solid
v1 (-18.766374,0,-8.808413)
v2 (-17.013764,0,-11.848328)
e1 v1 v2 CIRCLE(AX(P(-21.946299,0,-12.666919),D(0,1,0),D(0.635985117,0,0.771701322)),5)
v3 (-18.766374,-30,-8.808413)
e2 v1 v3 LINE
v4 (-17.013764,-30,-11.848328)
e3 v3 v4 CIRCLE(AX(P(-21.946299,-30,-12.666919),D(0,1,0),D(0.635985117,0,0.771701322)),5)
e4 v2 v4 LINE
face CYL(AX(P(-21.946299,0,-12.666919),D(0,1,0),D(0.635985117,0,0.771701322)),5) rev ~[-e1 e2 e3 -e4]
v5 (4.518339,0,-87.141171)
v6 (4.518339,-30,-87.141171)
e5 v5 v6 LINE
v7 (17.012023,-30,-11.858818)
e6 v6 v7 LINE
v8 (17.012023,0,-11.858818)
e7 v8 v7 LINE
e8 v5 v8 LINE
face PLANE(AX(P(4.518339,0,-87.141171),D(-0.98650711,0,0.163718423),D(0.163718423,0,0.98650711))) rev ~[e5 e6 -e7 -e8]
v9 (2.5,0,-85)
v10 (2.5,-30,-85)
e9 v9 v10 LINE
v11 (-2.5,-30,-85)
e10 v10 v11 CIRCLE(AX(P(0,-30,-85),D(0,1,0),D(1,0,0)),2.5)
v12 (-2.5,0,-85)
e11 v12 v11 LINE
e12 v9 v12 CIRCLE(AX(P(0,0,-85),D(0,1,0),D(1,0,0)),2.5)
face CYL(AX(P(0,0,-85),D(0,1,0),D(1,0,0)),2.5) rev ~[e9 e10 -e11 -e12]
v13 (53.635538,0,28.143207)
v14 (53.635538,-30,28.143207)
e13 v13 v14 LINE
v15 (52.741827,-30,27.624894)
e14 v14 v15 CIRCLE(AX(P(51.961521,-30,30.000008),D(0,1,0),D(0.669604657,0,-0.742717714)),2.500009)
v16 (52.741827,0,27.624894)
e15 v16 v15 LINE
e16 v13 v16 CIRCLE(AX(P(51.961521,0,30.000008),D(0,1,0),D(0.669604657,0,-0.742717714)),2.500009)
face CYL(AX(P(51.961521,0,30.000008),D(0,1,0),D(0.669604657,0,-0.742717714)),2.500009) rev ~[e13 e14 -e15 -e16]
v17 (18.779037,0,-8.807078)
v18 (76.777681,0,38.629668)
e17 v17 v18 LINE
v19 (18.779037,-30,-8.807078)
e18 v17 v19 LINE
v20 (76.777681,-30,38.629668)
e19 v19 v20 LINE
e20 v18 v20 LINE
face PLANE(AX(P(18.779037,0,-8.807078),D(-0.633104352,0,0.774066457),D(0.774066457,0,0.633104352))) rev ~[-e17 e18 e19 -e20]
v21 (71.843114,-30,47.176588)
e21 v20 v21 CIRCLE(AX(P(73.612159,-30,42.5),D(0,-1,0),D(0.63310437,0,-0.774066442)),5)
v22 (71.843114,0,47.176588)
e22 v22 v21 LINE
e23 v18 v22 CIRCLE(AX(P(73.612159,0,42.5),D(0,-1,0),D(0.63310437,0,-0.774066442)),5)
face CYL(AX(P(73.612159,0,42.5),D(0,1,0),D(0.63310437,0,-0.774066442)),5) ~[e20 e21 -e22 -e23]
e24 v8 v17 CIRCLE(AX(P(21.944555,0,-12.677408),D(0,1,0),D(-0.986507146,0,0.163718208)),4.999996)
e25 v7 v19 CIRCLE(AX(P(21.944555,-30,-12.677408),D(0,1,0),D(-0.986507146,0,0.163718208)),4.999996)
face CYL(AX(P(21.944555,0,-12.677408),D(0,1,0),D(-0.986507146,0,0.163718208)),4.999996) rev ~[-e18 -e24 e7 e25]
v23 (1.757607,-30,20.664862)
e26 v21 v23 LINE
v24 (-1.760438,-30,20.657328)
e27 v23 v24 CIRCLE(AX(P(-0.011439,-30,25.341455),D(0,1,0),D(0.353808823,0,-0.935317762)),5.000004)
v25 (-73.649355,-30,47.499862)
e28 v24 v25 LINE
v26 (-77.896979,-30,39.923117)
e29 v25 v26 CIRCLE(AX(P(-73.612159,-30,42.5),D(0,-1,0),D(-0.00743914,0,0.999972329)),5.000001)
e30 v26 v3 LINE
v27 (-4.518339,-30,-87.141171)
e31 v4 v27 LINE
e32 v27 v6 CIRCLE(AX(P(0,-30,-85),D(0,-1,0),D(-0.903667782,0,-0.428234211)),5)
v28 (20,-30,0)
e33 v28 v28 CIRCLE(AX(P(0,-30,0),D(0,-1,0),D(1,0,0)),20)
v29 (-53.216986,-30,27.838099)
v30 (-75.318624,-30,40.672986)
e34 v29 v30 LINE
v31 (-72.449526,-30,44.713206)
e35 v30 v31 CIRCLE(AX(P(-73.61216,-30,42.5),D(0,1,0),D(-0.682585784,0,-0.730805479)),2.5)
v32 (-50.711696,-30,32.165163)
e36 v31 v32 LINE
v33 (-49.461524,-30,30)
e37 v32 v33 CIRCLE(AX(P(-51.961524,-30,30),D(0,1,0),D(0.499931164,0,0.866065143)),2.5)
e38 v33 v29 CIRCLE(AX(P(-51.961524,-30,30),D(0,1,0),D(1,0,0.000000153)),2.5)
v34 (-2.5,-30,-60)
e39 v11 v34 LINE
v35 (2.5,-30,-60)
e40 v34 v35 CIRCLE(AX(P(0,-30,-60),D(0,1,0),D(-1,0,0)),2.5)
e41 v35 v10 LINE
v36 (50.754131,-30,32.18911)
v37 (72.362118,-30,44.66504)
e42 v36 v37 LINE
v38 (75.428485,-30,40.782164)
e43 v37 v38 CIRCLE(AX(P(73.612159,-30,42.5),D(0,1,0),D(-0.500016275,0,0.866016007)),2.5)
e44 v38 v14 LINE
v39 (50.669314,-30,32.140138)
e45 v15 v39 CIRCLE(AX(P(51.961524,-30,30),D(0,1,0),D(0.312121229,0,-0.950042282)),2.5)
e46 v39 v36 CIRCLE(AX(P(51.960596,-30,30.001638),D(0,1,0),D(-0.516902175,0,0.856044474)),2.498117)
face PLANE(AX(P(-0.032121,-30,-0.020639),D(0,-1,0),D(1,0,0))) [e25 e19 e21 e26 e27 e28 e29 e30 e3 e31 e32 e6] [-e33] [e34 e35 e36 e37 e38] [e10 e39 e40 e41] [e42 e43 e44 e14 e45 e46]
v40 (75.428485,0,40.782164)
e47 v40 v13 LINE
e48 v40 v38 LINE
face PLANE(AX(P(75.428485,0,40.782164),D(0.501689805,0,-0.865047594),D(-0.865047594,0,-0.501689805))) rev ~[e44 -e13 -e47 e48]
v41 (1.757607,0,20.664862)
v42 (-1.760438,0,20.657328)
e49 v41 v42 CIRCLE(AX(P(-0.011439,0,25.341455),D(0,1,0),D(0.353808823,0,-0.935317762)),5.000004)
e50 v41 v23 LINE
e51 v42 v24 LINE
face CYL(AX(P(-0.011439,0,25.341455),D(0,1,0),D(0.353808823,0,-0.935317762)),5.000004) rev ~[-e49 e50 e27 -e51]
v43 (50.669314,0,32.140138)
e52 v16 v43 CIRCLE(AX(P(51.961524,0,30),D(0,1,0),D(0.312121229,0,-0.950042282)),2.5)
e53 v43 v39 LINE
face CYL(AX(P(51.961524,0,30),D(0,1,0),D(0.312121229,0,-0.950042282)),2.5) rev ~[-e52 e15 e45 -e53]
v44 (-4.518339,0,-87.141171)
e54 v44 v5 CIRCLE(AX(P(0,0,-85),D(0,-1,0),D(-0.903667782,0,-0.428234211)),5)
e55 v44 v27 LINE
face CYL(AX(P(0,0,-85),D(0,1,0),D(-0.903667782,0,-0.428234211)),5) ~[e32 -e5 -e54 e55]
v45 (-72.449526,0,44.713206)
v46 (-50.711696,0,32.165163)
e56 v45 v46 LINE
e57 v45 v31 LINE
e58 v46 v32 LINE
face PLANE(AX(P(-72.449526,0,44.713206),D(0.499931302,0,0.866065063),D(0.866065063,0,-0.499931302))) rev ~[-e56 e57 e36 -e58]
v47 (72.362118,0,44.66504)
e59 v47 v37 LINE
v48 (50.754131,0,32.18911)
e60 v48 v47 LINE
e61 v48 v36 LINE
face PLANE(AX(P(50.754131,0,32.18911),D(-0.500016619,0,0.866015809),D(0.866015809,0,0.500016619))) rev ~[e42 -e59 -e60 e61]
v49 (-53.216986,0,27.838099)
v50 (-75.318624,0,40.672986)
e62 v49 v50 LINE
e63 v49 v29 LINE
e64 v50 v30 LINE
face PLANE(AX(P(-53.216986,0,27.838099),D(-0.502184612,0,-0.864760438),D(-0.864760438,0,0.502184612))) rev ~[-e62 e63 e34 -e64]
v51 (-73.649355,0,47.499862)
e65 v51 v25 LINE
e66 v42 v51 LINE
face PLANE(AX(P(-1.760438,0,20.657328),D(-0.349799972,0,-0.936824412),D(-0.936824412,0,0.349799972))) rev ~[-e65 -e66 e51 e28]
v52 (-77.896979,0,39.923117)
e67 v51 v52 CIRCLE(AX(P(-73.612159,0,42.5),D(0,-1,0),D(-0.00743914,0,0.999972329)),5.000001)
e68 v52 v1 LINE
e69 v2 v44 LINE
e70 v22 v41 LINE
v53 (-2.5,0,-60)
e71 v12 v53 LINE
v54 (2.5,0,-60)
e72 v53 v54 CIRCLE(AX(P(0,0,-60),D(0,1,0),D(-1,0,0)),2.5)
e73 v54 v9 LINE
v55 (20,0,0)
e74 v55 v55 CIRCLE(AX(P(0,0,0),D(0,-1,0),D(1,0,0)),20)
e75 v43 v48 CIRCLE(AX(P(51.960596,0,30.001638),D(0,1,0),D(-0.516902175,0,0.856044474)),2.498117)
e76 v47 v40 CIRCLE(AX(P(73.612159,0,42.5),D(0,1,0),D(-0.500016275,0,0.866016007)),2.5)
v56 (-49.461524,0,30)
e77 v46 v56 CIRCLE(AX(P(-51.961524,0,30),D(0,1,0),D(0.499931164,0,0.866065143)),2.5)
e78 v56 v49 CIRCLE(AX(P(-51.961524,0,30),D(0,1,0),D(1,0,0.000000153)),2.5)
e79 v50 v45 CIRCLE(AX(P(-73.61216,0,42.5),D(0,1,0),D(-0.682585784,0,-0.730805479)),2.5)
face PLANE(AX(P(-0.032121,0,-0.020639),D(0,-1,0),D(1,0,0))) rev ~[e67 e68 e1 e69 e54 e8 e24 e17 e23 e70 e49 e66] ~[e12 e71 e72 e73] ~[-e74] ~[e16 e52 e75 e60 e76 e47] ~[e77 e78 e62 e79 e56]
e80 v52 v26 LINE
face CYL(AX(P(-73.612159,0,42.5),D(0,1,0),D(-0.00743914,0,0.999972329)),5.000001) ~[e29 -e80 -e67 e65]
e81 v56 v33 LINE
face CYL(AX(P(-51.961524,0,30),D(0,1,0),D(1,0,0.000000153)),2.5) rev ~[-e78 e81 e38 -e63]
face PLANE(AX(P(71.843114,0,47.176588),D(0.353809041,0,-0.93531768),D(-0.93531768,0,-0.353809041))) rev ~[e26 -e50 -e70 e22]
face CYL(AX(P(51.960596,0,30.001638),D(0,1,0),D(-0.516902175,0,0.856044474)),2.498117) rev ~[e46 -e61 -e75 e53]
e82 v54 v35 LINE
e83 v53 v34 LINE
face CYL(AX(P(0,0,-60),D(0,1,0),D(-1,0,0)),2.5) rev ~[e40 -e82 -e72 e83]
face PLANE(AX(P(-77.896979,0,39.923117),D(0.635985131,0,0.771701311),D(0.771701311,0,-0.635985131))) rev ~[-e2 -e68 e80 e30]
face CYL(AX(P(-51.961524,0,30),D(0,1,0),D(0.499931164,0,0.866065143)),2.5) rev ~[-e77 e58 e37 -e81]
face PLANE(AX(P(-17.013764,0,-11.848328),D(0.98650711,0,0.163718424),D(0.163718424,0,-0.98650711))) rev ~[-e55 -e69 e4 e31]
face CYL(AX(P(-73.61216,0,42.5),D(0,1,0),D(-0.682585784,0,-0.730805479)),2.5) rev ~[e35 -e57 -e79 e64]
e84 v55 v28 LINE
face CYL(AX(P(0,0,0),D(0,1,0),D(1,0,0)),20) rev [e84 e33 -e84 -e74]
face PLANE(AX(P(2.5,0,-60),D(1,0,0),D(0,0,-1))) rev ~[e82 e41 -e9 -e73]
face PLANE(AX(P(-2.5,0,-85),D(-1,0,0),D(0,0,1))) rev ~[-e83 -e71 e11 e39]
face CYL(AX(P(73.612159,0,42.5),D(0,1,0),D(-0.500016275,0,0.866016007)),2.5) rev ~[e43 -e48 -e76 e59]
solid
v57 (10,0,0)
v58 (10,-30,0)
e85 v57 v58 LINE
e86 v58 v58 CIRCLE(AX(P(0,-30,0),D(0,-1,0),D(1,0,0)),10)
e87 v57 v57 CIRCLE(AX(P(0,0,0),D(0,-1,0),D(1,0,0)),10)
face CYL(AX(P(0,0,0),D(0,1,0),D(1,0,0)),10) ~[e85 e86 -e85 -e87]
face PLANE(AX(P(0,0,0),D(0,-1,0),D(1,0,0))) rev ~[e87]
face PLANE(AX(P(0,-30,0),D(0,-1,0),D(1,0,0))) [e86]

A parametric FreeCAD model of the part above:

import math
import FreeCAD as App
import Part
import Sketcher

V = App.Vector

doc = App.newDocument("Part")
body = doc.addObject("PartDesign::Body", "Body")
body.AllowCompound = True

sketch1 = body.newObject("Sketcher::SketchObject", "Sketch")
sketch1.AttachmentSupport = (doc.getObject("XZ_Plane"), [""])
sketch1.MapMode = "FlatFace"
sketch1.addGeometry(Part.LineSegment(V(-17.013764, -11.848328, 0), V(-4.518339, -87.141171, 0)), False)
sketch1.addGeometry(Part.ArcOfCircle(Part.Circle(V(0, -85, 0), V(0, 0, 1), 5), math.radians(-154.644449), math.radians(-25.355551)), False)
sketch1.addGeometry(Part.LineSegment(V(4.518339, -87.141171, 0), V(17.012023, -11.858818, 0)), False)
sketch1.addGeometry(Part.ArcOfCircle(Part.Circle(V(21.944555, -12.677408, 0), V(0, 0, 1), 4.999996), math.radians(129.279508), math.radians(170.577219)), False)
sketch1.addGeometry(Part.LineSegment(V(18.779037, -8.807078, 0), V(76.777681, 38.629668, 0)), False)
sketch1.addGeometry(Part.ArcOfCircle(Part.Circle(V(73.612159, 42.5, 0), V(0, 0, 1), 5), math.radians(-50.72047), math.radians(110.720474)), False)
sketch1.addGeometry(Part.LineSegment(V(71.843114, 47.176588, 0), V(1.757607, 20.664862, 0)), False)
sketch1.addGeometry(Part.ArcOfCircle(Part.Circle(V(-0.011439, 25.341455, 0), V(0, 0, 1), 5.000004), math.radians(-110.475057), math.radians(-69.279542)), False)
sketch1.addGeometry(Part.LineSegment(V(-1.760438, 20.657328, 0), V(-73.649355, 47.499862, 0)), False)
sketch1.addGeometry(Part.ArcOfCircle(Part.Circle(V(-73.612159, 42.5, 0), V(0, 0, 1), 5.000001), math.radians(90.426235), math.radians(211.022625)), False)
sketch1.addGeometry(Part.LineSegment(V(-77.896979, 39.923117, 0), V(-18.766374, -8.808413, 0)), False)
sketch1.addGeometry(Part.ArcOfCircle(Part.Circle(V(-21.946299, -12.666919, 0), V(0, 0, 1), 5), math.radians(9.422786), math.radians(50.506913)), False)
sketch1.addGeometry(Part.LineSegment(V(2.5, -60, 0), V(2.5, -85, 0)), False)
sketch1.addGeometry(Part.ArcOfCircle(Part.Circle(V(0, -85, 0), V(0, 0, 1), 2.5), math.radians(180), math.radians(360)), False)
sketch1.addGeometry(Part.LineSegment(V(-2.5, -85, 0), V(-2.5, -60, 0)), False)
sketch1.addGeometry(Part.ArcOfCircle(Part.Circle(V(0, -60, 0), V(0, 0, 1), 2.5), math.radians(0), math.radians(180)), False)
sketch1.addGeometry(Part.LineSegment(V(-53.216986, 27.838099, 0), V(-75.318624, 40.672986, 0)), False)
sketch1.addGeometry(Part.ArcOfCircle(Part.Circle(V(-73.61216, 42.5, 0), V(0, 0, 1), 2.5), math.radians(62.286318), math.radians(226.953963)), False)
sketch1.addGeometry(Part.LineSegment(V(-72.449526, 44.713206, 0), V(-50.711696, 32.165163, 0)), False)
sketch1.addGeometry(Part.ArcOfCircle(Part.Circle(V(-51.961524, 30, 0), V(0, 0, 1), 2.5), math.radians(-0.000007), math.radians(60.004554)), False)
sketch1.addGeometry(Part.ArcOfCircle(Part.Circle(V(-51.961524, 30, 0), V(0, 0, 1), 2.5), math.radians(-120.144656), math.radians(0.000009)), False)
sketch1.addGeometry(Part.Circle(V(0, 0, 0), V(0, 0, 1), 20), False)
sketch1.addGeometry(Part.LineSegment(V(50.754131, 32.18911, 0), V(72.362118, 44.66504, 0)), False)
sketch1.addGeometry(Part.ArcOfCircle(Part.Circle(V(73.612159, 42.5, 0), V(0, 0, 1), 2.5), math.radians(-43.403688), math.radians(120.001077)), False)
sketch1.addGeometry(Part.LineSegment(V(75.428485, 40.782164, 0), V(53.635538, 28.143207, 0)), False)
sketch1.addGeometry(Part.ArcOfCircle(Part.Circle(V(51.961521, 30.000008, 0), V(0, 0, 1), 2.500009), math.radians(-71.812871), math.radians(-47.963441)), False)
sketch1.addGeometry(Part.ArcOfCircle(Part.Circle(V(51.961524, 30, 0), V(0, 0, 1), 2.5), math.radians(121.123469), math.radians(288.187112)), False)
sketch1.addGeometry(Part.ArcOfCircle(Part.Circle(V(51.960596, 30.001638, 0), V(0, 0, 1), 2.498117), math.radians(118.878237), math.radians(121.124684)), False)
sketch1.addGeometry(Part.Circle(V(0, 0, 0), V(0, 0, 1), 10), False)
sketch1.addConstraint(Sketcher.Constraint("Coincident", 0, 2, 1, 1))
sketch1.addConstraint(Sketcher.Constraint("Coincident", 1, 2, 2, 1))
sketch1.addConstraint(Sketcher.Constraint("Coincident", 2, 2, 3, 2))
sketch1.addConstraint(Sketcher.Constraint("Coincident", 3, 1, 4, 1))
sketch1.addConstraint(Sketcher.Constraint("Coincident", 4, 2, 5, 1))
sketch1.addConstraint(Sketcher.Constraint("Coincident", 5, 2, 6, 1))
sketch1.addConstraint(Sketcher.Constraint("Coincident", 6, 2, 7, 2))
sketch1.addConstraint(Sketcher.Constraint("Coincident", 7, 1, 8, 1))
sketch1.addConstraint(Sketcher.Constraint("Coincident", 8, 2, 9, 1))
sketch1.addConstraint(Sketcher.Constraint("Coincident", 9, 2, 10, 1))
sketch1.addConstraint(Sketcher.Constraint("Coincident", 10, 2, 11, 2))
sketch1.addConstraint(Sketcher.Constraint("Coincident", 11, 1, 0, 1))
sketch1.addConstraint(Sketcher.Constraint("Coincident", 12, 2, 13, 2))
sketch1.addConstraint(Sketcher.Constraint("Coincident", 13, 1, 14, 1))
sketch1.addConstraint(Sketcher.Constraint("Coincident", 14, 2, 15, 2))
sketch1.addConstraint(Sketcher.Constraint("Coincident", 15, 1, 12, 1))
sketch1.addConstraint(Sketcher.Constraint("Coincident", 16, 2, 17, 2))
sketch1.addConstraint(Sketcher.Constraint("Coincident", 17, 1, 18, 1))
sketch1.addConstraint(Sketcher.Constraint("Coincident", 18, 2, 19, 2))
sketch1.addConstraint(Sketcher.Constraint("Coincident", 19, 1, 20, 2))
sketch1.addConstraint(Sketcher.Constraint("Coincident", 20, 1, 16, 1))
sketch1.addConstraint(Sketcher.Constraint("Coincident", 22, 2, 23, 2))
sketch1.addConstraint(Sketcher.Constraint("Coincident", 23, 1, 24, 1))
sketch1.addConstraint(Sketcher.Constraint("Coincident", 24, 2, 25, 2))
sketch1.addConstraint(Sketcher.Constraint("Coincident", 25, 1, 26, 2))
sketch1.addConstraint(Sketcher.Constraint("Coincident", 26, 1, 27, 2))
sketch1.addConstraint(Sketcher.Constraint("Coincident", 27, 1, 22, 1))
sketch1.addConstraint(Sketcher.Constraint("Vertical", 12))
sketch1.addConstraint(Sketcher.Constraint("Vertical", 14))
sketch1.addConstraint(Sketcher.Constraint("Coincident", 21, 3, -1, 1))
sketch1.addConstraint(Sketcher.Constraint("Coincident", 28, 3, -1, 1))
sketch1.addConstraint(Sketcher.Constraint("Coincident", 13, 3, 1, 3))
sketch1.addConstraint(Sketcher.Constraint("Coincident", 17, 3, 9, 3))
sketch1.addConstraint(Sketcher.Constraint("Coincident", 20, 3, 19, 3))
sketch1.addConstraint(Sketcher.Constraint("Coincident", 23, 3, 5, 3))
sketch1.addConstraint(Sketcher.Constraint("Coincident", 26, 3, 25, 3))
sketch1.addConstraint(Sketcher.Constraint("PointOnObject", 1, 3, -2))
sketch1.addConstraint(Sketcher.Constraint("Diameter", 21, 40.0))
sketch1.addConstraint(Sketcher.Constraint("Diameter", 28, 20.0))
sketch1.addConstraint(Sketcher.Constraint("Radius", 1, 5.0))
sketch1.addConstraint(Sketcher.Constraint("Radius", 5, 5.0))
sketch1.addConstraint(Sketcher.Constraint("Radius", 9, 5.000001))
sketch1.addConstraint(Sketcher.Constraint("Radius", 11, 5.0))
sketch1.addConstraint(Sketcher.Constraint("Radius", 13, 2.5))
sketch1.addConstraint(Sketcher.Constraint("Radius", 17, 2.5))
sketch1.addConstraint(Sketcher.Constraint("Radius", 19, 2.5))
sketch1.addConstraint(Sketcher.Constraint("Radius", 23, 2.5))
sketch1.addConstraint(Sketcher.Constraint("Radius", 26, 2.5))
sketch1.addConstraint(Sketcher.Constraint("DistanceY", 12, 2, 12, 1, 25.0))
sketch1.addConstraint(Sketcher.Constraint("DistanceY", 14, 1, 14, 2, 25.0))
sketch1.addConstraint(Sketcher.Constraint("DistanceY", 1, 3, -1, 1, 85.0))
sketch1.addConstraint(Sketcher.Constraint("DistanceY", 15, 3, -1, 1, 60.0))
sketch1.addConstraint(Sketcher.Constraint("DistanceY", -1, 1, 19, 3, 30.0))
sketch1.addConstraint(Sketcher.Constraint("DistanceY", -1, 1, 26, 3, 30.0))
sketch1.addConstraint(Sketcher.Constraint("DistanceY", 12, 2, -1, 1, 85.0))
sketch1.addConstraint(Sketcher.Constraint("DistanceY", 13, 1, -1, 1, 85.0))
sketch1.addConstraint(Sketcher.Constraint("DistanceY", -1, 1, 19, 1, 30.0))
sketch1.addConstraint(Sketcher.Constraint("DistanceY", -1, 1, 5, 3, 42.5))
sketch1.addConstraint(Sketcher.Constraint("DistanceY", -1, 1, 9, 3, 42.5))
sketch1.addConstraint(Sketcher.Constraint("Radius", 3, 4.999996))
sketch1.addConstraint(Sketcher.Constraint("Radius", 7, 5.000004))
sketch1.addConstraint(Sketcher.Constraint("Radius", 27, 2.498117))
sketch1.addConstraint(Sketcher.Constraint("DistanceX", 7, 1, 7, 3, 1.748999))
sketch1.addConstraint(Sketcher.Constraint("DistanceX", 11, 3, -1, 1, 21.946299))
sketch1.addConstraint(Sketcher.Constraint("DistanceY", -1, 1, 20, 1, 27.838099))
sketch1.addConstraint(Sketcher.Constraint("DistanceY", 11, 3, 2, 2, 0.808101))
sketch1.addConstraint(Sketcher.Constraint("DistanceX", 16, 2, 19, 3, 23.3571))
sketch1.addConstraint(Sketcher.Constraint("DistanceX", 16, 2, 17, 1, 2.869098))
sketch1.addConstraint(Sketcher.Constraint("DistanceY", 27, 3, 22, 2, 14.663402))
sketch1.addConstraint(Sketcher.Constraint("DistanceY", 24, 2, 25, 3, 1.856801))
sketch1.addConstraint(Sketcher.Constraint("DistanceY", 27, 3, 26, 1, 2.1385))
sketch1.addConstraint(Sketcher.Constraint("Distance", 8, 76.73681))
sketch1.addConstraint(Sketcher.Constraint("Distance", 22, 24.951031))
sketch1.addConstraint(Sketcher.Constraint("DistanceY", 3, 3, -1, 1, 12.677408))
sketch1.addConstraint(Sketcher.Constraint("DistanceX", -1, 1, 5, 3, 73.612159))
sketch1.addConstraint(Sketcher.Constraint("DistanceX", 7, 3, -1, 1, 0.011439))
sketch1.addConstraint(Sketcher.Constraint("DistanceX", 9, 3, -1, 1, 73.612159))
sketch1.addConstraint(Sketcher.Constraint("DistanceY", 11, 3, -1, 1, 12.666919))
sketch1.addConstraint(Sketcher.Constraint("DistanceX", -1, 1, 25, 3, 51.961521))
sketch1.addConstraint(Sketcher.Constraint("DistanceY", -1, 1, 27, 3, 30.001638))
sketch1.addConstraint(Sketcher.Constraint("DistanceX", 0, 2, -1, 1, 4.518339))
sketch1.addConstraint(Sketcher.Constraint("DistanceX", -1, 1, 1, 2, 4.518339))
sketch1.addConstraint(Sketcher.Constraint("DistanceX", -1, 1, 4, 2, 76.777681))
sketch1.addConstraint(Sketcher.Constraint("DistanceY", -1, 1, 5, 2, 47.176588))
sketch1.addConstraint(Sketcher.Constraint("DistanceY", -1, 1, 6, 2, 20.664862))
sketch1.addConstraint(Sketcher.Constraint("DistanceX", 9, 2, -1, 1, 77.896979))
sketch1.addConstraint(Sketcher.Constraint("DistanceY", 11, 1, -1, 1, 11.848328))
sketch1.addConstraint(Sketcher.Constraint("DistanceX", 19, 3, 3, 3, 73.906079))
sketch1.addConstraint(Sketcher.Constraint("DistanceX", 3, 3, 26, 3, 30.016969))
sketch1.addConstraint(Sketcher.Constraint("DistanceY", 2, 2, 3, 1, 3.05174))
sketch1.addConstraint(Sketcher.Constraint("DistanceX", 6, 2, 3, 1, 17.02143))
sketch1.addConstraint(Sketcher.Constraint("DistanceY", 10, 2, 7, 1, 29.465741))
sketch1.addConstraint(Sketcher.Constraint("DistanceX", 17, 1, 18, 2, 21.73783))
sketch1.addConstraint(Sketcher.Constraint("DistanceX", 5, 2, 23, 1, 3.585371))
sketch1.addConstraint(Sketcher.Constraint("DistanceX", 25, 1, 24, 2, 0.893711))
pad1 = body.newObject("PartDesign::Pad", "Pad")
pad1.Profile = sketch1
pad1.Length = 30

doc.recompute()
